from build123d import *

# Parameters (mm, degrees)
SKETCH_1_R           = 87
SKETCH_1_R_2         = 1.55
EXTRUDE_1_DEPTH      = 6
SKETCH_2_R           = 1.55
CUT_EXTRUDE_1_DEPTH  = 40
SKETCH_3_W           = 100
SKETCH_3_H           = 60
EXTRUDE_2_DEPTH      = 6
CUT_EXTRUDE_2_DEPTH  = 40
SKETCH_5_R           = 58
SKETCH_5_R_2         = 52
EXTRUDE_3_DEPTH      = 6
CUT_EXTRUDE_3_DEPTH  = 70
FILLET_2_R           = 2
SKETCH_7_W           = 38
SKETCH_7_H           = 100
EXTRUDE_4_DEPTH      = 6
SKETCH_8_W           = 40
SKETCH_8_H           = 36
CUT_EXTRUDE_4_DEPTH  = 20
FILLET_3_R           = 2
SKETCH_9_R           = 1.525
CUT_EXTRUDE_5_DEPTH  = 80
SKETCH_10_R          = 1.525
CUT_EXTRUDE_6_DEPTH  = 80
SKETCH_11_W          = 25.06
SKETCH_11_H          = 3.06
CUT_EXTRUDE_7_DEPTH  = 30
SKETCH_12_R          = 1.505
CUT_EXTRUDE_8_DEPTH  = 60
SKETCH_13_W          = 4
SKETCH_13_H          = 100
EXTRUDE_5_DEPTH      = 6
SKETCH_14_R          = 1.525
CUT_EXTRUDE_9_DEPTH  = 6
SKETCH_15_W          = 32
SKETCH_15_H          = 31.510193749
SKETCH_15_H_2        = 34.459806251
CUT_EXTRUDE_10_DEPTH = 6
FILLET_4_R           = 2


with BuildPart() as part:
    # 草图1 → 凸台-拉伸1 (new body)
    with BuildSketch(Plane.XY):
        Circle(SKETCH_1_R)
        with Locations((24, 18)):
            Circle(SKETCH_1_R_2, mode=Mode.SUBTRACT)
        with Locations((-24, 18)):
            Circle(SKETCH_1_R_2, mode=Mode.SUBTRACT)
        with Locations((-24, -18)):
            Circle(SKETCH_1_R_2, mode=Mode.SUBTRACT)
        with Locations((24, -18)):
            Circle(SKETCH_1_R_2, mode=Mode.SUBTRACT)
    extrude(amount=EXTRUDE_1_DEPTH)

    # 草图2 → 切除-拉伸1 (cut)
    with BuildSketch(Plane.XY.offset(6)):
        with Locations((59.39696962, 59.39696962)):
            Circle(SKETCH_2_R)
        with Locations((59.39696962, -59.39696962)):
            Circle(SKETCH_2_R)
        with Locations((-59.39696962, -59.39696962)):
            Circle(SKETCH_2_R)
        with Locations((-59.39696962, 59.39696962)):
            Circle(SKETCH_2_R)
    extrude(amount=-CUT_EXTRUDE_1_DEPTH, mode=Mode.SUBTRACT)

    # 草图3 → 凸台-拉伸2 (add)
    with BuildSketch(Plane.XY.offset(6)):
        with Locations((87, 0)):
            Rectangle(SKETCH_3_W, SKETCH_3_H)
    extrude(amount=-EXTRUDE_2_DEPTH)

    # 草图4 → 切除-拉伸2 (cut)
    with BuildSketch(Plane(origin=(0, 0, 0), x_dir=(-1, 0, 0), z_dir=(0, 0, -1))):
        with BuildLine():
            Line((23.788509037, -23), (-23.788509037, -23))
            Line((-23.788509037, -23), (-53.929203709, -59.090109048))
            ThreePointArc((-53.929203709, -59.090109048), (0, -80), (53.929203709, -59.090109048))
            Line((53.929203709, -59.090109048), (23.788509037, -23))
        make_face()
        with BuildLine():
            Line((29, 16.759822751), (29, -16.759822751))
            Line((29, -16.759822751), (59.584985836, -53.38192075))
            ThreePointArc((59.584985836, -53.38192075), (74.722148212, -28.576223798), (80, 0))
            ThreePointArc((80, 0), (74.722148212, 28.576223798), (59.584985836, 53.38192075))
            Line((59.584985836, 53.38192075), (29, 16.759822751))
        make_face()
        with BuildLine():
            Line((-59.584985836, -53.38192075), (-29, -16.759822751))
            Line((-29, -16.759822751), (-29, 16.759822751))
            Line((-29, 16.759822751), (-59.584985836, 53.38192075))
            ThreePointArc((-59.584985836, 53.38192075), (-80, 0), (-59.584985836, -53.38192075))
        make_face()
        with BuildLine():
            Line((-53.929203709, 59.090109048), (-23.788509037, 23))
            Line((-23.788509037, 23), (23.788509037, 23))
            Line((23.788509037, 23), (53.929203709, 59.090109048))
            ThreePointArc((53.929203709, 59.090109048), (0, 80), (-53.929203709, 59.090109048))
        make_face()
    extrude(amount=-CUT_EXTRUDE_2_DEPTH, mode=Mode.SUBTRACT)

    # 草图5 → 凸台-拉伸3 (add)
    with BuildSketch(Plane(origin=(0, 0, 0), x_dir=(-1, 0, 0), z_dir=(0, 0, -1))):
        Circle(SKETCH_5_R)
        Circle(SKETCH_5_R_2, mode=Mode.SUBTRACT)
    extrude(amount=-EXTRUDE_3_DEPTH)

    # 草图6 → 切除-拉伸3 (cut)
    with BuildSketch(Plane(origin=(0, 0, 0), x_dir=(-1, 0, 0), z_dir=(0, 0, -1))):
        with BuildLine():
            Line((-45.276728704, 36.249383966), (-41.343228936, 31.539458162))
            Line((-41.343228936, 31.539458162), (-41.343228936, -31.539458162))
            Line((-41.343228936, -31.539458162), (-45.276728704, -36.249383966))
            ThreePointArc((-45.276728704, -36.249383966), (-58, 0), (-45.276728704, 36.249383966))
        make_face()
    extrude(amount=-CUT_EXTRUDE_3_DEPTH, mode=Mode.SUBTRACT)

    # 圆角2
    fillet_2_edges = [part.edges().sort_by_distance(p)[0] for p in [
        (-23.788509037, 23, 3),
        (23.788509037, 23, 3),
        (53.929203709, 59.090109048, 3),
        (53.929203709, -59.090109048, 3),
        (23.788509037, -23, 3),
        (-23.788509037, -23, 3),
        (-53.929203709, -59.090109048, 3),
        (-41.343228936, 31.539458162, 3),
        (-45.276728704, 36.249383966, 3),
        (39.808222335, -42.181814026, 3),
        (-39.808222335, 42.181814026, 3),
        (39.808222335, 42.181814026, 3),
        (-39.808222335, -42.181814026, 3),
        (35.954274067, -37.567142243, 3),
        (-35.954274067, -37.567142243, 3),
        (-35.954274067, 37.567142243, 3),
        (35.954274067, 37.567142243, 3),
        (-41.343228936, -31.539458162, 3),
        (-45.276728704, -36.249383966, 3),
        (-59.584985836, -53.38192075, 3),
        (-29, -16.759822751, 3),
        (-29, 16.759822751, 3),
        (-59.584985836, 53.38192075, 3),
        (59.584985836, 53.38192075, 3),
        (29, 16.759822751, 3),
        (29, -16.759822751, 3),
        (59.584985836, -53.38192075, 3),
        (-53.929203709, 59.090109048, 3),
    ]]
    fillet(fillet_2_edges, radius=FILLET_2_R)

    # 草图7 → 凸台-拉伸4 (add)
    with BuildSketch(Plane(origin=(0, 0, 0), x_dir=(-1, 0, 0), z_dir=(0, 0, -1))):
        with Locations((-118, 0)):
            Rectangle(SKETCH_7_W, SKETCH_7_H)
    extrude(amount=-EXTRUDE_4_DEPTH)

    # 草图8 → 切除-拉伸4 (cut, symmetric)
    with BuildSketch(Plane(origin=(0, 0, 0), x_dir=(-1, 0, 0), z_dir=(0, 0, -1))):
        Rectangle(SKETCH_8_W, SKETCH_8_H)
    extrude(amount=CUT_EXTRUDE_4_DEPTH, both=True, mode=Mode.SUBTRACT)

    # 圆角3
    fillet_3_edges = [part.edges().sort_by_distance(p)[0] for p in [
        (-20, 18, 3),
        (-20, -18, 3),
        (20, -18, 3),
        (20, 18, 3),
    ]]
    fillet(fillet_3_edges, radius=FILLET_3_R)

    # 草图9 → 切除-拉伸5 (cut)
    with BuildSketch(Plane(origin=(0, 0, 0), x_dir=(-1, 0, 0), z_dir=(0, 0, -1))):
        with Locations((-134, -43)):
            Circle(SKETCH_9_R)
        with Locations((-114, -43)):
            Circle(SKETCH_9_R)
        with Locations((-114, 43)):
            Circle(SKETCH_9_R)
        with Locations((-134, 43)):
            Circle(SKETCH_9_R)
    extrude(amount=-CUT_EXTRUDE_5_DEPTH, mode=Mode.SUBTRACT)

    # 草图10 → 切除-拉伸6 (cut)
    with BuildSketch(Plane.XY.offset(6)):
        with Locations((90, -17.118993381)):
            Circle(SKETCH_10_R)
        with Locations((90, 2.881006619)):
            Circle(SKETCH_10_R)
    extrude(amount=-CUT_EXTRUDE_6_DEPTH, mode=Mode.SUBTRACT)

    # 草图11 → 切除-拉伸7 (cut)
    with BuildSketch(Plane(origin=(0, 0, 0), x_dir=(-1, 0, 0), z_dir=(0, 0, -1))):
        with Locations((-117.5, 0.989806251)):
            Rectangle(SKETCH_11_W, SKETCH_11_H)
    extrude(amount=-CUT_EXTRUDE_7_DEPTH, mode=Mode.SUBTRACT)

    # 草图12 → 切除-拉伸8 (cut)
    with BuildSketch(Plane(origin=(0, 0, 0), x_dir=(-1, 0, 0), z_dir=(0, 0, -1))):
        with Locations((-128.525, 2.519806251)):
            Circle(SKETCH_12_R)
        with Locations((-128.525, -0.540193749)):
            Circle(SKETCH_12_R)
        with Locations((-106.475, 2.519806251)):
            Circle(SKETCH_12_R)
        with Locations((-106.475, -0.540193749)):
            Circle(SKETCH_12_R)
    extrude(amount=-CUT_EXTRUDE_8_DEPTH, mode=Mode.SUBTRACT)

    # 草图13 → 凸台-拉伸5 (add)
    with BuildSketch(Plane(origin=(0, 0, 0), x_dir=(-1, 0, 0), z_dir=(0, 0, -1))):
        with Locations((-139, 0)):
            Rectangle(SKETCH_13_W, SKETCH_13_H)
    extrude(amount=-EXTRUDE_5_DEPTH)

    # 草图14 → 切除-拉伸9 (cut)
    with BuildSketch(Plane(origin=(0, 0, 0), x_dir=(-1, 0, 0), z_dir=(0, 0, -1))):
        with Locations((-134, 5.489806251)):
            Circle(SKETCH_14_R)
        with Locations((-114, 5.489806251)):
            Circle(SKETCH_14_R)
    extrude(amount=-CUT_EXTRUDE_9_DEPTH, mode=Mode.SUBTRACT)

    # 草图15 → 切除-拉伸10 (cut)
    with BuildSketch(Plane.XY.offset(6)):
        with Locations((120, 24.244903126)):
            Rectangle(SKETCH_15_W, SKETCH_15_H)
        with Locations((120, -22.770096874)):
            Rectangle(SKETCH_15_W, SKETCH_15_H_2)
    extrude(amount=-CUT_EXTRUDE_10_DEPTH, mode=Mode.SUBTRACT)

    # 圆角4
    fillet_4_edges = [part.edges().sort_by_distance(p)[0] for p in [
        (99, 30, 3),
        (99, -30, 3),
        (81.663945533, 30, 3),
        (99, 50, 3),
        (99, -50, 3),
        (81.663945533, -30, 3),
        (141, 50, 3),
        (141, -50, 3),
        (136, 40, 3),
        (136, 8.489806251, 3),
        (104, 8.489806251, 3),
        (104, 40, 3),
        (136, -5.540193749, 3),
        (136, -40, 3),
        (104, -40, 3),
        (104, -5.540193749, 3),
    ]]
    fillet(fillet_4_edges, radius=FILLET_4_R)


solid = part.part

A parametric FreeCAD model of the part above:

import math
import FreeCAD as App
import Part
import Sketcher
from FreeCAD import Vector


def edges_at(feature, points):
    """Names of the edges that pass closest to the given points."""
    edges = feature.Shape.Edges
    near = lambda p: min(range(len(edges)), key=lambda i: edges[i].distToShape(Part.Vertex(*p))[0])
    return sorted({f"Edge{near(p) + 1}" for p in points})

doc = App.newDocument("Part")
body = doc.addObject("PartDesign::Body", "Body")

# Sketch on XY plane
sketch1 = body.newObject("Sketcher::SketchObject", "Sketch")
sketch1.AttachmentSupport = (doc.getObject("XY_Plane"), [""])
sketch1.MapMode = "FlatFace"
sketch1.addGeometry(Part.Circle(Vector(0, 0, 0), Vector(0, 0, 1), 87), False)
sketch1.addGeometry(Part.Circle(Vector(-24, -18, 0), Vector(0, 0, 1), 1.55), False)
sketch1.addGeometry(Part.Circle(Vector(24, -18, 0), Vector(0, 0, 1), 1.55), False)
sketch1.addGeometry(Part.Circle(Vector(-24, 18, 0), Vector(0, 0, 1), 1.55), False)
sketch1.addGeometry(Part.Circle(Vector(24, 18, 0), Vector(0, 0, 1), 1.55), False)
sketch1.addConstraint(Sketcher.Constraint("Coincident", 0, 3, -1, 1))
sketch1.addConstraint(Sketcher.Constraint("Equal", 1, 2))
sketch1.addConstraint(Sketcher.Constraint("Equal", 2, 3))
sketch1.addConstraint(Sketcher.Constraint("Equal", 3, 4))
sketch1.addConstraint(Sketcher.Constraint("Symmetric", 2, 3, 3, 3, -1, 1))
sketch1.addConstraint(Sketcher.Constraint("Symmetric", 1, 3, 4, 3, -1, 1))
sketch1.addConstraint(Sketcher.Constraint("Symmetric", 1, 3, 2, 3, -2))
sketch1.addConstraint(Sketcher.Constraint("Diameter", 0, 174.0))
sketch1.addConstraint(Sketcher.Constraint("Diameter", 1, 3.1))
sketch1.addConstraint(Sketcher.Constraint("DistanceX", 1, 3, -1, 1, 24.0))
sketch1.addConstraint(Sketcher.Constraint("DistanceY", 1, 3, -1, 1, 18.0))
pad1 = body.newObject("PartDesign::Pad", "Pad")
pad1.Profile = sketch1
pad1.Length = 6

# Sketch on XY plane
sketch2 = body.newObject("Sketcher::SketchObject", "Sketch001")
sketch2.AttachmentSupport = (doc.getObject("XY_Plane"), [""])
sketch2.MapMode = "FlatFace"
sketch2.AttachmentOffset = App.Placement(Vector(0, 0, 6), App.Rotation())
sketch2.addGeometry(Part.Circle(Vector(59.39697, 59.39697, 0), Vector(0, 0, 1), 1.55), False)
sketch2.addGeometry(Part.Circle(Vector(59.39697, -59.39697, 0), Vector(0, 0, 1), 1.55), False)
sketch2.addGeometry(Part.Circle(Vector(-59.39697, -59.39697, 0), Vector(0, 0, 1), 1.55), False)
sketch2.addGeometry(Part.Circle(Vector(-59.39697, 59.39697, 0), Vector(0, 0, 1), 1.55), False)
sketch2.addConstraint(Sketcher.Constraint("Equal", 0, 1))
sketch2.addConstraint(Sketcher.Constraint("Equal", 1, 2))
sketch2.addConstraint(Sketcher.Constraint("Equal", 2, 3))
sketch2.addConstraint(Sketcher.Constraint("Symmetric", 0, 3, 2, 3, -1, 1))
sketch2.addConstraint(Sketcher.Constraint("Symmetric", 1, 3, 3, 3, -1, 1))
sketch2.addConstraint(Sketcher.Constraint("Symmetric", 1, 3, 2, 3, -2))
sketch2.addConstraint(Sketcher.Constraint("Diameter", 0, 3.1))
sketch2.addConstraint(Sketcher.Constraint("DistanceX", -1, 1, 0, 3, 59.39697))
sketch2.addConstraint(Sketcher.Constraint("DistanceY", -1, 1, 0, 3, 59.39697))
pocket1 = body.newObject("PartDesign::Pocket", "Pocket")
pocket1.Profile = sketch2
pocket1.Length = 40

# Sketch on XY plane
sketch3 = body.newObject("Sketcher::SketchObject", "Sketch002")
sketch3.AttachmentSupport = (doc.getObject("XY_Plane"), [""])
sketch3.MapMode = "FlatFace"
sketch3.AttachmentOffset = App.Placement(Vector(0, 0, 6), App.Rotation())
sketch3.addGeometry(Part.LineSegment(Vector(37, 30, 0), Vector(37, -30, 0)), False)
sketch3.addGeometry(Part.LineSegment(Vector(37, -30, 0), Vector(137, -30, 0)), False)
sketch3.addGeometry(Part.LineSegment(Vector(137, -30, 0), Vector(137, 30, 0)), False)
sketch3.addGeometry(Part.LineSegment(Vector(137, 30, 0), Vector(37, 30, 0)), False)
sketch3.addConstraint(Sketcher.Constraint("Coincident", 0, 2, 1, 1))
sketch3.addConstraint(Sketcher.Constraint("Coincident", 1, 2, 2, 1))
sketch3.addConstraint(Sketcher.Constraint("Coincident", 2, 2, 3, 1))
sketch3.addConstraint(Sketcher.Constraint("Coincident", 3, 2, 0, 1))
sketch3.addConstraint(Sketcher.Constraint("Vertical", 0))
sketch3.addConstraint(Sketcher.Constraint("Horizontal", 1))
sketch3.addConstraint(Sketcher.Constraint("Vertical", 2))
sketch3.addConstraint(Sketcher.Constraint("Horizontal", 3))
sketch3.addConstraint(Sketcher.Constraint("DistanceX", 1, 1, 1, 2, 100.0))
sketch3.addConstraint(Sketcher.Constraint("DistanceY", 0, 2, 0, 1, 60.0))
sketch3.addConstraint(Sketcher.Constraint("DistanceX", -1, 1, 0, 2, 37.0))
sketch3.addConstraint(Sketcher.Constraint("DistanceY", 0, 2, -1, 1, 30.0))
pad2 = body.newObject("PartDesign::Pad", "Pad001")
pad2.Profile = sketch3
pad2.Length = 6
pad2.Reversed = True

# Sketch on XY plane
sketch4 = body.newObject("Sketcher::SketchObject", "Sketch003")
sketch4.AttachmentSupport = (doc.getObject("XY_Plane"), [""])
sketch4.MapMode = "FlatFace"
sketch4.addGeometry(Part.LineSegment(Vector(-23.788509, -23, 0), Vector(23.788509, -23, 0)), False)
sketch4.addGeometry(Part.LineSegment(Vector(23.788509, -23, 0), Vector(53.929204, -59.090109, 0)), False)
sketch4.addGeometry(Part.ArcOfCircle(Part.Circle(Vector(0, 0, 0), Vector(0, 0, 1), 80), math.radians(-132.385466), math.radians(-47.614534)), False)
sketch4.addGeometry(Part.LineSegment(Vector(-53.929204, -59.090109, 0), Vector(-23.788509, -23, 0)), False)
sketch4.addGeometry(Part.LineSegment(Vector(-29, 16.759823, 0), Vector(-29, -16.759823, 0)), False)
sketch4.addGeometry(Part.LineSegment(Vector(-29, -16.759823, 0), Vector(-59.584986, -53.381921, 0)), False)
sketch4.addGeometry(Part.ArcOfCircle(Part.Circle(Vector(0, 0, 0), Vector(0, 0, 1), 80), math.radians(-180), math.radians(-138.142981)), False)
sketch4.addGeometry(Part.ArcOfCircle(Part.Circle(Vector(0, 0, 0), Vector(0, 0, 1), 80), math.radians(138.142981), math.radians(180)), False)
sketch4.addGeometry(Part.LineSegment(Vector(-59.584986, 53.381921, 0), Vector(-29, 16.759823, 0)), False)
sketch4.addGeometry(Part.LineSegment(Vector(59.584986, -53.381921, 0), Vector(29, -16.759823, 0)), False)
sketch4.addGeometry(Part.LineSegment(Vector(29, -16.759823, 0), Vector(29, 16.759823, 0)), False)
sketch4.addGeometry(Part.LineSegment(Vector(29, 16.759823, 0), Vector(59.584986, 53.381921, 0)), False)
sketch4.addGeometry(Part.ArcOfCircle(Part.Circle(Vector(0, 0, 0), Vector(0, 0, 1), 80), math.radians(-41.857019), math.radians(41.857019)), False)
sketch4.addGeometry(Part.LineSegment(Vector(53.929204, 59.090109, 0), Vector(23.788509, 23, 0)), False)
sketch4.addGeometry(Part.LineSegment(Vector(23.788509, 23, 0), Vector(-23.788509, 23, 0)), False)
sketch4.addGeometry(Part.LineSegment(Vector(-23.788509, 23, 0), Vector(-53.929204, 59.090109, 0)), False)
sketch4.addGeometry(Part.ArcOfCircle(Part.Circle(Vector(0, 0, 0), Vector(0, 0, 1), 80), math.radians(47.614534), math.radians(132.385466)), False)
sketch4.addConstraint(Sketcher.Constraint("Coincident", 0, 2, 1, 1))
sketch4.addConstraint(Sketcher.Constraint("Coincident", 1, 2, 2, 2))
sketch4.addConstraint(Sketcher.Constraint("Coincident", 2, 1, 3, 1))
sketch4.addConstraint(Sketcher.Constraint("Coincident", 3, 2, 0, 1))
sketch4.addConstraint(Sketcher.Constraint("Coincident", 4, 2, 5, 1))
sketch4.addConstraint(Sketcher.Constraint("Coincident", 5, 2, 6, 2))
sketch4.addConstraint(Sketcher.Constraint("Tangent", 6, 1, 7, 2))
sketch4.addConstraint(Sketcher.Constraint("Coincident", 7, 1, 8, 1))
sketch4.addConstraint(Sketcher.Constraint("Coincident", 8, 2, 4, 1))
sketch4.addConstraint(Sketcher.Constraint("Coincident", 9, 2, 10, 1))
sketch4.addConstraint(Sketcher.Constraint("Coincident", 10, 2, 11, 1))
sketch4.addConstraint(Sketcher.Constraint("Coincident", 11, 2, 12, 2))
sketch4.addConstraint(Sketcher.Constraint("Coincident", 12, 1, 9, 1))
sketch4.addConstraint(Sketcher.Constraint("Coincident", 13, 2, 14, 1))
sketch4.addConstraint(Sketcher.Constraint("Coincident", 14, 2, 15, 1))
sketch4.addConstraint(Sketcher.Constraint("Coincident", 15, 2, 16, 2))
sketch4.addConstraint(Sketcher.Constraint("Coincident", 16, 1, 13, 1))
sketch4.addConstraint(Sketcher.Constraint("Horizontal", 0))
sketch4.addConstraint(Sketcher.Constraint("Vertical", 4))
sketch4.addConstraint(Sketcher.Constraint("Vertical", 10))
sketch4.addConstraint(Sketcher.Constraint("Horizontal", 14))
sketch4.addConstraint(Sketcher.Constraint("Coincident", 2, 3, -1, 1))
sketch4.addConstraint(Sketcher.Constraint("Coincident", 6, 3, -1, 1))
sketch4.addConstraint(Sketcher.Constraint("Coincident", 12, 3, -1, 1))
sketch4.addConstraint(Sketcher.Constraint("Coincident", 16, 3, -1, 1))
sketch4.addConstraint(Sketcher.Constraint("Equal", 2, 6))
sketch4.addConstraint(Sketcher.Constraint("Equal", 6, 7))
sketch4.addConstraint(Sketcher.Constraint("Equal", 7, 12))
sketch4.addConstraint(Sketcher.Constraint("Equal", 12, 16))
sketch4.addConstraint(Sketcher.Constraint("Symmetric", 8, 2, 9, 2, -1, 1))
sketch4.addConstraint(Sketcher.Constraint("Symmetric", 3, 2, 13, 2, -1, 1))
sketch4.addConstraint(Sketcher.Constraint("PointOnObject", 6, 1, -1))
sketch4.addConstraint(Sketcher.Constraint("Parallel", 3, 5))
sketch4.addConstraint(Sketcher.Constraint("Parallel", 1, 8))
sketch4.addConstraint(Sketcher.Constraint("Parallel", 8, 9))
sketch4.addConstraint(Sketcher.Constraint("Parallel", 5, 11))
sketch4.addConstraint(Sketcher.Constraint("Parallel", 11, 13))
sketch4.addConstraint(Sketcher.Constraint("Parallel", 9, 15))
sketch4.addConstraint(Sketcher.Constraint("Horizontal", 1, 2, 2, 1))
sketch4.addConstraint(Sketcher.Constraint("Horizontal", 4, 2, 9, 2))
sketch4.addConstraint(Sketcher.Constraint("Horizontal", 8, 2, 10, 2))
sketch4.addConstraint(Sketcher.Constraint("Horizontal", 7, 1, 11, 2))
sketch4.addConstraint(Sketcher.Constraint("Horizontal", 15, 2, 16, 1))
sketch4.addConstraint(Sketcher.Constraint("Radius", 2, 80.0))
sketch4.addConstraint(Sketcher.Constraint("DistanceY", 0, 2, -1, 1, 23.0))
sketch4.addConstraint(Sketcher.Constraint("DistanceX", 4, 2, -1, 1, 29.0))
sketch4.addConstraint(Sketcher.Constraint("DistanceX", 0, 1, 0, 2, 47.577018))
sketch4.addConstraint(Sketcher.Constraint("Distance", 1, 47.020819))
sketch4.addConstraint(Sketcher.Constraint("DistanceY", 4, 2, 4, 1, 33.519646))
pocket2 = body.newObject("PartDesign::Pocket", "Pocket001")
pocket2.Profile = sketch4
pocket2.Length = 40
pocket2.Reversed = True

# Sketch on XY plane
sketch5 = body.newObject("Sketcher::SketchObject", "Sketch004")
sketch5.AttachmentSupport = (doc.getObject("XY_Plane"), [""])
sketch5.MapMode = "FlatFace"
sketch5.addGeometry(Part.Circle(Vector(0, 0, 0), Vector(0, 0, 1), 58), False)
sketch5.addGeometry(Part.Circle(Vector(0, 0, 0), Vector(0, 0, 1), 52), False)
sketch5.addConstraint(Sketcher.Constraint("Coincident", 0, 3, -1, 1))
sketch5.addConstraint(Sketcher.Constraint("Coincident", 1, 3, -1, 1))
sketch5.addConstraint(Sketcher.Constraint("Diameter", 0, 116.0))
sketch5.addConstraint(Sketcher.Constraint("Diameter", 1, 104.0))
pad3 = body.newObject("PartDesign::Pad", "Pad002")
pad3.Profile = sketch5
pad3.Length = 6

# Sketch on XY plane
sketch6 = body.newObject("Sketcher::SketchObject", "Sketch005")
sketch6.AttachmentSupport = (doc.getObject("XY_Plane"), [""])
sketch6.MapMode = "FlatFace"
sketch6.addGeometry(Part.LineSegment(Vector(41.343229, 31.539458, 0), Vector(45.276729, 36.249384, 0)), False)
sketch6.addGeometry(Part.ArcOfCircle(Part.Circle(Vector(0, 0, 0), Vector(0, 0, 1), 58), math.radians(-38.681408), math.radians(38.681408)), False)
sketch6.addGeometry(Part.LineSegment(Vector(45.276729, -36.249384, 0), Vector(41.343229, -31.539458, 0)), False)
sketch6.addGeometry(Part.LineSegment(Vector(41.343229, -31.539458, 0), Vector(41.343229, 31.539458, 0)), False)
sketch6.addConstraint(Sketcher.Constraint("Coincident", 0, 2, 1, 2))
sketch6.addConstraint(Sketcher.Constraint("Coincident", 1, 1, 2, 1))
sketch6.addConstraint(Sketcher.Constraint("Coincident", 2, 2, 3, 1))
sketch6.addConstraint(Sketcher.Constraint("Coincident", 3, 2, 0, 1))
sketch6.addConstraint(Sketcher.Constraint("Vertical", 3))
sketch6.addConstraint(Sketcher.Constraint("Coincident", 1, 3, -1, 1))
sketch6.addConstraint(Sketcher.Constraint("Vertical", 0, 2, 1, 1))
sketch6.addConstraint(Sketcher.Constraint("Equal", 0, 2))
sketch6.addConstraint(Sketcher.Constraint("Radius", 1, 58.0))
sketch6.addConstraint(Sketcher.Constraint("DistanceX", 2, 2, 1, 1, 3.9335))
sketch6.addConstraint(Sketcher.Constraint("DistanceY", 3, 1, 3, 2, 63.078916))
sketch6.addConstraint(Sketcher.Constraint("DistanceX", -1, 1, 0, 2, 45.276729))
pocket3 = body.newObject("PartDesign::Pocket", "Pocket002")
pocket3.Profile = sketch6
pocket3.Length = 70
pocket3.Reversed = True
doc.recompute()

fillet = body.newObject("PartDesign::Fillet", "Fillet")
fillet.Base = (pocket3, edges_at(pocket3, [
    (-23.789, 23, 3),
    (23.789, 23, 3),
    (53.929, 59.09, 3),
    (53.929, -59.09, 3),
    (23.789, -23, 3),
    (-23.789, -23, 3),
    (-53.929, -59.09, 3),
    (-41.343, 31.539, 3),
    (-45.277, 36.249, 3),
    (39.808, -42.182, 3),
    (-39.808, 42.182, 3),
    (39.808, 42.182, 3),
    (-39.808, -42.182, 3),
    (35.954, -37.567, 3),
    (-35.954, -37.567, 3),
    (-35.954, 37.567, 3),
    (35.954, 37.567, 3),
    (-41.343, -31.539, 3),
    (-45.277, -36.249, 3),
    (-59.585, -53.382, 3),
    (-29, -16.76, 3),
    (-29, 16.76, 3),
    (-59.585, 53.382, 3),
    (59.585, 53.382, 3),
    (29, 16.76, 3),
    (29, -16.76, 3),
    (59.585, -53.382, 3),
    (-53.929, 59.09, 3),
]))
fillet.Radius = 2

# Sketch on XY plane
sketch7 = body.newObject("Sketcher::SketchObject", "Sketch006")
sketch7.AttachmentSupport = (doc.getObject("XY_Plane"), [""])
sketch7.MapMode = "FlatFace"
sketch7.addGeometry(Part.LineSegment(Vector(137, 50, 0), Vector(137, -50, 0)), False)
sketch7.addGeometry(Part.LineSegment(Vector(137, -50, 0), Vector(99, -50, 0)), False)
sketch7.addGeometry(Part.LineSegment(Vector(99, -50, 0), Vector(99, 50, 0)), False)
sketch7.addGeometry(Part.LineSegment(Vector(99, 50, 0), Vector(137, 50, 0)), False)
sketch7.addConstraint(Sketcher.Constraint("Coincident", 0, 2, 1, 1))
sketch7.addConstraint(Sketcher.Constraint("Coincident", 1, 2, 2, 1))
sketch7.addConstraint(Sketcher.Constraint("Coincident", 2, 2, 3, 1))
sketch7.addConstraint(Sketcher.Constraint("Coincident", 3, 2, 0, 1))
sketch7.addConstraint(Sketcher.Constraint("Vertical", 0))
sketch7.addConstraint(Sketcher.Constraint("Horizontal", 1))
sketch7.addConstraint(Sketcher.Constraint("Vertical", 2))
sketch7.addConstraint(Sketcher.Constraint("Horizontal", 3))
sketch7.addConstraint(Sketcher.Constraint("DistanceX", 1, 2, 1, 1, 38.0))
sketch7.addConstraint(Sketcher.Constraint("DistanceY", 0, 2, 0, 1, 100.0))
sketch7.addConstraint(Sketcher.Constraint("DistanceX", -1, 1, 0, 2, 137.0))
sketch7.addConstraint(Sketcher.Constraint("DistanceY", 0, 2, -1, 1, 50.0))
pad4 = body.newObject("PartDesign::Pad", "Pad003")
pad4.Profile = sketch7
pad4.Length = 6

# Sketch on XY plane
sketch8 = body.newObject("Sketcher::SketchObject", "Sketch007")
sketch8.AttachmentSupport = (doc.getObject("XY_Plane"), [""])
sketch8.MapMode = "FlatFace"
sketch8.addGeometry(Part.LineSegment(Vector(20, 18, 0), Vector(20, -18, 0)), False)
sketch8.addGeometry(Part.LineSegment(Vector(20, -18, 0), Vector(-20, -18, 0)), False)
sketch8.addGeometry(Part.LineSegment(Vector(-20, -18, 0), Vector(-20, 18, 0)), False)
sketch8.addGeometry(Part.LineSegment(Vector(-20, 18, 0), Vector(20, 18, 0)), False)
sketch8.addConstraint(Sketcher.Constraint("Coincident", 0, 2, 1, 1))
sketch8.addConstraint(Sketcher.Constraint("Coincident", 1, 2, 2, 1))
sketch8.addConstraint(Sketcher.Constraint("Coincident", 2, 2, 3, 1))
sketch8.addConstraint(Sketcher.Constraint("Coincident", 3, 2, 0, 1))
sketch8.addConstraint(Sketcher.Constraint("Vertical", 0))
sketch8.addConstraint(Sketcher.Constraint("Horizontal", 1))
sketch8.addConstraint(Sketcher.Constraint("Vertical", 2))
sketch8.addConstraint(Sketcher.Constraint("Horizontal", 3))
sketch8.addConstraint(Sketcher.Constraint("Symmetric", 0, 2, 2, 2, -1, 1))
sketch8.addConstraint(Sketcher.Constraint("DistanceX", 1, 2, 1, 1, 40.0))
sketch8.addConstraint(Sketcher.Constraint("DistanceY", 0, 2, 0, 1, 36.0))
pocket4 = body.newObject("PartDesign::Pocket", "Pocket003")
pocket4.Profile = sketch8
pocket4.Length = 40
pocket4.Midplane = True
doc.recompute()

fillet2 = body.newObject("PartDesign::Fillet", "Fillet001")
fillet2.Base = (pocket4, edges_at(pocket4, [
    (-20, 18, 3),
    (-20, -18, 3),
    (20, -18, 3),
    (20, 18, 3),
]))
fillet2.Radius = 2

# Sketch on XY plane
sketch9 = body.newObject("Sketcher::SketchObject", "Sketch008")
sketch9.AttachmentSupport = (doc.getObject("XY_Plane"), [""])
sketch9.MapMode = "FlatFace"
sketch9.addGeometry(Part.Circle(Vector(134, -43, 0), Vector(0, 0, 1), 1.525), False)
sketch9.addGeometry(Part.Circle(Vector(114, -43, 0), Vector(0, 0, 1), 1.525), False)
sketch9.addGeometry(Part.Circle(Vector(114, 43, 0), Vector(0, 0, 1), 1.525), False)
sketch9.addGeometry(Part.Circle(Vector(134, 43, 0), Vector(0, 0, 1), 1.525), False)
sketch9.addConstraint(Sketcher.Constraint("Equal", 0, 1))
sketch9.addConstraint(Sketcher.Constraint("Equal", 1, 2))
sketch9.addConstraint(Sketcher.Constraint("Equal", 2, 3))
sketch9.addConstraint(Sketcher.Constraint("Symmetric", 1, 3, 2, 3, -1))
sketch9.addConstraint(Sketcher.Constraint("Symmetric", 0, 3, 3, 3, -1))
sketch9.addConstraint(Sketcher.Constraint("Horizontal", 0, 3, 1, 3))
sketch9.addConstraint(Sketcher.Constraint("Diameter", 0, 3.05))
sketch9.addConstraint(Sketcher.Constraint("DistanceX", -1, 1, 0, 3, 134.0))
sketch9.addConstraint(Sketcher.Constraint("DistanceY", 0, 3, -1, 1, 43.0))
sketch9.addConstraint(Sketcher.Constraint("DistanceX", -1, 1, 1, 3, 114.0))
pocket5 = body.newObject("PartDesign::Pocket", "Pocket004")
pocket5.Profile = sketch9
pocket5.Length = 80
pocket5.Reversed = True

# Sketch on XY plane
sketch10 = body.newObject("Sketcher::SketchObject", "Sketch009")
sketch10.AttachmentSupport = (doc.getObject("XY_Plane"), [""])
sketch10.MapMode = "FlatFace"
sketch10.AttachmentOffset = App.Placement(Vector(0, 0, 6), App.Rotation())
sketch10.addGeometry(Part.Circle(Vector(90, -17.118993, 0), Vector(0, 0, 1), 1.525), False)
sketch10.addGeometry(Part.Circle(Vector(90, 2.881007, 0), Vector(0, 0, 1), 1.525), False)
sketch10.addConstraint(Sketcher.Constraint("Equal", 0, 1))
sketch10.addConstraint(Sketcher.Constraint("Vertical", 0, 3, 1, 3))
sketch10.addConstraint(Sketcher.Constraint("Diameter", 0, 3.05))
sketch10.addConstraint(Sketcher.Constraint("DistanceX", -1, 1, 0, 3, 90.0))
sketch10.addConstraint(Sketcher.Constraint("DistanceY", 0, 3, 1, 3, 20.0))
sketch10.addConstraint(Sketcher.Constraint("DistanceY", 0, 3, -1, 1, 17.118993))
pocket6 = body.newObject("PartDesign::Pocket", "Pocket005")
pocket6.Profile = sketch10
pocket6.Length = 80

# Sketch on XY plane
sketch11 = body.newObject("Sketcher::SketchObject", "Sketch010")
sketch11.AttachmentSupport = (doc.getObject("XY_Plane"), [""])
sketch11.MapMode = "FlatFace"
sketch11.addGeometry(Part.LineSegment(Vector(130.03, 2.519806, 0), Vector(130.03, -0.540194, 0)), False)
sketch11.addGeometry(Part.LineSegment(Vector(130.03, -0.540194, 0), Vector(104.97, -0.540194, 0)), False)
sketch11.addGeometry(Part.LineSegment(Vector(104.97, -0.540194, 0), Vector(104.97, 2.519806, 0)), False)
sketch11.addGeometry(Part.LineSegment(Vector(104.97, 2.519806, 0), Vector(130.03, 2.519806, 0)), False)
sketch11.addConstraint(Sketcher.Constraint("Coincident", 0, 2, 1, 1))
sketch11.addConstraint(Sketcher.Constraint("Coincident", 1, 2, 2, 1))
sketch11.addConstraint(Sketcher.Constraint("Coincident", 2, 2, 3, 1))
sketch11.addConstraint(Sketcher.Constraint("Coincident", 3, 2, 0, 1))
sketch11.addConstraint(Sketcher.Constraint("Vertical", 0))
sketch11.addConstraint(Sketcher.Constraint("Horizontal", 1))
sketch11.addConstraint(Sketcher.Constraint("Vertical", 2))
sketch11.addConstraint(Sketcher.Constraint("Horizontal", 3))
sketch11.addConstraint(Sketcher.Constraint("DistanceX", 1, 2, 1, 1, 25.06))
sketch11.addConstraint(Sketcher.Constraint("DistanceY", 0, 2, 0, 1, 3.06))
sketch11.addConstraint(Sketcher.Constraint("DistanceX", -1, 1, 0, 2, 130.03))
sketch11.addConstraint(Sketcher.Constraint("DistanceY", 0, 2, -1, 1, 0.540194))
pocket7 = body.newObject("PartDesign::Pocket", "Pocket006")
pocket7.Profile = sketch11
pocket7.Length = 30
pocket7.Reversed = True

# Sketch on XY plane
sketch12 = body.newObject("Sketcher::SketchObject", "Sketch011")
sketch12.AttachmentSupport = (doc.getObject("XY_Plane"), [""])
sketch12.MapMode = "FlatFace"
sketch12.addGeometry(Part.Circle(Vector(128.525, 2.519806, 0), Vector(0, 0, 1), 1.505), False)
sketch12.addGeometry(Part.Circle(Vector(128.525, -0.540194, 0), Vector(0, 0, 1), 1.505), False)
sketch12.addGeometry(Part.Circle(Vector(106.475, 2.519806, 0), Vector(0, 0, 1), 1.505), False)
sketch12.addGeometry(Part.Circle(Vector(106.475, -0.540194, 0), Vector(0, 0, 1), 1.505), False)
sketch12.addConstraint(Sketcher.Constraint("Equal", 0, 1))
sketch12.addConstraint(Sketcher.Constraint("Equal", 1, 2))
sketch12.addConstraint(Sketcher.Constraint("Equal", 2, 3))
sketch12.addConstraint(Sketcher.Constraint("Horizontal", 0, 3, 2, 3))
sketch12.addConstraint(Sketcher.Constraint("Horizontal", 1, 3, 3, 3))
sketch12.addConstraint(Sketcher.Constraint("Vertical", 0, 3, 1, 3))
sketch12.addConstraint(Sketcher.Constraint("Vertical", 2, 3, 3, 3))
sketch12.addConstraint(Sketcher.Constraint("Diameter", 0, 3.01))
sketch12.addConstraint(Sketcher.Constraint("DistanceY", 1, 3, 0, 3, 3.06))
sketch12.addConstraint(Sketcher.Constraint("DistanceX", 2, 3, 0, 3, 22.05))
sketch12.addConstraint(Sketcher.Constraint("DistanceX", -1, 1, 0, 3, 128.525))
sketch12.addConstraint(Sketcher.Constraint("DistanceY", -1, 1, 0, 3, 2.519806))
pocket8 = body.newObject("PartDesign::Pocket", "Pocket007")
pocket8.Profile = sketch12
pocket8.Length = 60
pocket8.Reversed = True

# Sketch on XY plane
sketch13 = body.newObject("Sketcher::SketchObject", "Sketch012")
sketch13.AttachmentSupport = (doc.getObject("XY_Plane"), [""])
sketch13.MapMode = "FlatFace"
sketch13.addGeometry(Part.LineSegment(Vector(141, 50, 0), Vector(141, -50, 0)), False)
sketch13.addGeometry(Part.LineSegment(Vector(141, -50, 0), Vector(137, -50, 0)), False)
sketch13.addGeometry(Part.LineSegment(Vector(137, -50, 0), Vector(137, 50, 0)), False)
sketch13.addGeometry(Part.LineSegment(Vector(137, 50, 0), Vector(141, 50, 0)), False)
sketch13.addConstraint(Sketcher.Constraint("Coincident", 0, 2, 1, 1))
sketch13.addConstraint(Sketcher.Constraint("Coincident", 1, 2, 2, 1))
sketch13.addConstraint(Sketcher.Constraint("Coincident", 2, 2, 3, 1))
sketch13.addConstraint(Sketcher.Constraint("Coincident", 3, 2, 0, 1))
sketch13.addConstraint(Sketcher.Constraint("Vertical", 0))
sketch13.addConstraint(Sketcher.Constraint("Horizontal", 1))
sketch13.addConstraint(Sketcher.Constraint("Vertical", 2))
sketch13.addConstraint(Sketcher.Constraint("Horizontal", 3))
sketch13.addConstraint(Sketcher.Constraint("DistanceX", 1, 2, 1, 1, 4.0))
sketch13.addConstraint(Sketcher.Constraint("DistanceY", 0, 2, 0, 1, 100.0))
sketch13.addConstraint(Sketcher.Constraint("DistanceX", -1, 1, 0, 2, 141.0))
sketch13.addConstraint(Sketcher.Constraint("DistanceY", 0, 2, -1, 1, 50.0))
pad5 = body.newObject("PartDesign::Pad", "Pad004")
pad5.Profile = sketch13
pad5.Length = 6

# Sketch on XY plane
sketch14 = body.newObject("Sketcher::SketchObject", "Sketch013")
sketch14.AttachmentSupport = (doc.getObject("XY_Plane"), [""])
sketch14.MapMode = "FlatFace"
sketch14.addGeometry(Part.Circle(Vector(134, 5.489806, 0), Vector(0, 0, 1), 1.525), False)
sketch14.addGeometry(Part.Circle(Vector(114, 5.489806, 0), Vector(0, 0, 1), 1.525), False)
sketch14.addConstraint(Sketcher.Constraint("Equal", 0, 1))
sketch14.addConstraint(Sketcher.Constraint("Horizontal", 0, 3, 1, 3))
sketch14.addConstraint(Sketcher.Constraint("Diameter", 0, 3.05))
sketch14.addConstraint(Sketcher.Constraint("DistanceX", -1, 1, 0, 3, 134.0))
sketch14.addConstraint(Sketcher.Constraint("DistanceX", -1, 1, 1, 3, 114.0))
sketch14.addConstraint(Sketcher.Constraint("DistanceY", -1, 1, 0, 3, 5.489806))
pocket9 = body.newObject("PartDesign::Pocket", "Pocket008")
pocket9.Profile = sketch14
pocket9.Length = 6
pocket9.Reversed = True

# Sketch on XY plane
sketch15 = body.newObject("Sketcher::SketchObject", "Sketch014")
sketch15.AttachmentSupport = (doc.getObject("XY_Plane"), [""])
sketch15.MapMode = "FlatFace"
sketch15.AttachmentOffset = App.Placement(Vector(0, 0, 6), App.Rotation())
sketch15.addGeometry(Part.LineSegment(Vector(104, 40, 0), Vector(104, 8.489806, 0)), False)
sketch15.addGeometry(Part.LineSegment(Vector(104, 8.489806, 0), Vector(136, 8.489806, 0)), False)
sketch15.addGeometry(Part.LineSegment(Vector(136, 8.489806, 0), Vector(136, 40, 0)), False)
sketch15.addGeometry(Part.LineSegment(Vector(136, 40, 0), Vector(104, 40, 0)), False)
sketch15.addGeometry(Part.LineSegment(Vector(104, -5.540194, 0), Vector(104, -40, 0)), False)
sketch15.addGeometry(Part.LineSegment(Vector(104, -40, 0), Vector(136, -40, 0)), False)
sketch15.addGeometry(Part.LineSegment(Vector(136, -40, 0), Vector(136, -5.540194, 0)), False)
sketch15.addGeometry(Part.LineSegment(Vector(136, -5.540194, 0), Vector(104, -5.540194, 0)), False)
sketch15.addConstraint(Sketcher.Constraint("Coincident", 0, 2, 1, 1))
sketch15.addConstraint(Sketcher.Constraint("Coincident", 1, 2, 2, 1))
sketch15.addConstraint(Sketcher.Constraint("Coincident", 2, 2, 3, 1))
sketch15.addConstraint(Sketcher.Constraint("Coincident", 3, 2, 0, 1))
sketch15.addConstraint(Sketcher.Constraint("Coincident", 4, 2, 5, 1))
sketch15.addConstraint(Sketcher.Constraint("Coincident", 5, 2, 6, 1))
sketch15.addConstraint(Sketcher.Constraint("Coincident", 6, 2, 7, 1))
sketch15.addConstraint(Sketcher.Constraint("Coincident", 7, 2, 4, 1))
sketch15.addConstraint(Sketcher.Constraint("Vertical", 0))
sketch15.addConstraint(Sketcher.Constraint("Horizontal", 1))
sketch15.addConstraint(Sketcher.Constraint("Vertical", 2))
sketch15.addConstraint(Sketcher.Constraint("Horizontal", 3))
sketch15.addConstraint(Sketcher.Constraint("Vertical", 4))
sketch15.addConstraint(Sketcher.Constraint("Horizontal", 5))
sketch15.addConstraint(Sketcher.Constraint("Vertical", 6))
sketch15.addConstraint(Sketcher.Constraint("Horizontal", 7))
sketch15.addConstraint(Sketcher.Constraint("Symmetric", 3, 2, 4, 2, -1))
sketch15.addConstraint(Sketcher.Constraint("Vertical", 2, 2, 5, 2))
sketch15.addConstraint(Sketcher.Constraint("DistanceX", 1, 1, 1, 2, 32.0))
sketch15.addConstraint(Sketcher.Constraint("DistanceX", -1, 1, 0, 2, 104.0))
sketch15.addConstraint(Sketcher.Constraint("DistanceY", -1, 1, 2, 2, 40.0))
sketch15.addConstraint(Sketcher.Constraint("DistanceY", 6, 2, 1, 2, 14.03))
sketch15.addConstraint(Sketcher.Constraint("DistanceY", 0, 2, 0, 1, 31.510194))
pocket10 = body.newObject("PartDesign::Pocket", "Pocket009")
pocket10.Profile = sketch15
pocket10.Length = 6
doc.recompute()

fillet3 = body.newObject("PartDesign::Fillet", "Fillet002")
fillet3.Base = (pocket10, edges_at(pocket10, [
    (99, 30, 3),
    (99, -30, 3),
    (81.664, 30, 3),
    (99, 50, 3),
    (99, -50, 3),
    (81.664, -30, 3),
    (141, 50, 3),
    (141, -50, 3),
    (136, 40, 3),
    (136, 8.49, 3),
    (104, 8.49, 3),
    (104, 40, 3),
    (136, -5.54, 3),
    (136, -40, 3),
    (104, -40, 3),
    (104, -5.54, 3),
]))
fillet3.Radius = 2

doc.recompute()
